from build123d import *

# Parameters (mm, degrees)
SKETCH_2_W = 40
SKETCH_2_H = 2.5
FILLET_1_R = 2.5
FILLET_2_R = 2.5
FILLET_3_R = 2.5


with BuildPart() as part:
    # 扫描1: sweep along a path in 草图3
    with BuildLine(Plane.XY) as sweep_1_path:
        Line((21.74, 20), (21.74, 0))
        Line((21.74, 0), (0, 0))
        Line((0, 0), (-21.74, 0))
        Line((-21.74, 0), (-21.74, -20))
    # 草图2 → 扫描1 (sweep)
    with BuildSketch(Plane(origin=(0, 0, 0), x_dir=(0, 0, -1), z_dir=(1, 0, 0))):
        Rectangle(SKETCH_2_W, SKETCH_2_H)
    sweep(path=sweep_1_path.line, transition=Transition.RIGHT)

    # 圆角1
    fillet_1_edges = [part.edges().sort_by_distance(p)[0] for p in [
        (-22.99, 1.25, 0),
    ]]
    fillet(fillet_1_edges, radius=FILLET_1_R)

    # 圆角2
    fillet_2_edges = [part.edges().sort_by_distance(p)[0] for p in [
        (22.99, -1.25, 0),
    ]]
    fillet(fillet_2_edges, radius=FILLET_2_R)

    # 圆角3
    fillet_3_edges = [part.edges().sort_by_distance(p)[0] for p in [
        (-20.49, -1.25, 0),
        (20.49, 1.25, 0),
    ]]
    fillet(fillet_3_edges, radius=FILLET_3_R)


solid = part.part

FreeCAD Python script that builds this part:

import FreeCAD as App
import Part
import Sketcher
from FreeCAD import Vector


def edges_at(feature, points):
    """Names of the edges that pass closest to the given points."""
    edges = feature.Shape.Edges
    near = lambda p: min(range(len(edges)), key=lambda i: edges[i].distToShape(Part.Vertex(*p))[0])
    return sorted({f"Edge{near(p) + 1}" for p in points})

doc = App.newDocument("Part")
params = doc.addObject("Spreadsheet::Sheet", "Params")
for row, (alias, value) in enumerate([
    ("sketch1_height", "40 mm"),
    ("sketch1_width", "2.5 mm"),
    ("sketch2_height", "20 mm"),
    ("sketch2_width", "43.48 mm"),
    ("fillet_radius", "2.5 mm"),
    ("fillet2_radius", "2.5 mm"),
    ("fillet3_radius", "2.5 mm"),
], start=1):
    params.set(f"A{row}", alias)
    params.set(f"B{row}", "=" + value)
    params.setAlias(f"B{row}", alias)

body = doc.addObject("PartDesign::Body", "Body")

# Sketch on YZ plane
sketch1 = body.newObject("Sketcher::SketchObject", "Sketch")
sketch1.AttachmentSupport = (doc.getObject("YZ_Plane"), [""])
sketch1.MapMode = "FlatFace"
sketch1.addGeometry(Part.LineSegment(Vector(1.2, 20, 0), Vector(-1.2, 20, 0)), False)
sketch1.addGeometry(Part.LineSegment(Vector(-1.2, 20, 0), Vector(-1.2, -20, 0)), False)
sketch1.addGeometry(Part.LineSegment(Vector(-1.2, -20, 0), Vector(1.2, -20, 0)), False)
sketch1.addGeometry(Part.LineSegment(Vector(1.2, -20, 0), Vector(1.2, 20, 0)), False)
sketch1.addConstraint(Sketcher.Constraint("Coincident", 0, 2, 1, 1))
sketch1.addConstraint(Sketcher.Constraint("Coincident", 1, 2, 2, 1))
sketch1.addConstraint(Sketcher.Constraint("Coincident", 2, 2, 3, 1))
sketch1.addConstraint(Sketcher.Constraint("Coincident", 3, 2, 0, 1))
sketch1.addConstraint(Sketcher.Constraint("Horizontal", 0))
sketch1.addConstraint(Sketcher.Constraint("Vertical", 1))
sketch1.addConstraint(Sketcher.Constraint("Horizontal", 2))
sketch1.addConstraint(Sketcher.Constraint("Vertical", 3))
sketch1.addConstraint(Sketcher.Constraint("Symmetric", 0, 2, 2, 2, -1, 1))
sketch1.addConstraint(Sketcher.Constraint("DistanceY", 1, 2, 1, 1, 40.0))
sketch1.addConstraint(Sketcher.Constraint("DistanceX", 0, 2, 0, 1, 2.5))
sketch1.setExpression("Constraints[9]", "Params.sketch1_height")
sketch1.setExpression("Constraints[10]", "Params.sketch1_width")

# Sketch on XY plane
sketch2 = body.newObject("Sketcher::SketchObject", "Sketch001")
sketch2.AttachmentSupport = (doc.getObject("XY_Plane"), [""])
sketch2.MapMode = "FlatFace"
sketch2.addGeometry(Part.LineSegment(Vector(22, 20, 0), Vector(22, 0, 0)), False)
sketch2.addGeometry(Part.LineSegment(Vector(22, 0, 0), Vector(-22, 0, 0)), False)
sketch2.addGeometry(Part.LineSegment(Vector(-22, 0, 0), Vector(-22, -20, 0)), False)
sketch2.addConstraint(Sketcher.Constraint("Coincident", 0, 2, 1, 1))
sketch2.addConstraint(Sketcher.Constraint("Coincident", 1, 2, 2, 1))
sketch2.addConstraint(Sketcher.Constraint("Vertical", 0))
sketch2.addConstraint(Sketcher.Constraint("Horizontal", 1))
sketch2.addConstraint(Sketcher.Constraint("Vertical", 2))
sketch2.addConstraint(Sketcher.Constraint("Symmetric", 0, 2, 1, 2, -1, 1))
sketch2.addConstraint(Sketcher.Constraint("Equal", 0, 2))
sketch2.addConstraint(Sketcher.Constraint("DistanceY", 0, 2, 0, 1, 20.0))
sketch2.addConstraint(Sketcher.Constraint("DistanceX", 1, 2, 1, 1, 43.48))
sketch2.setExpression("Constraints[7]", "Params.sketch2_height")
sketch2.setExpression("Constraints[8]", "Params.sketch2_width")
doc.recompute()

additivepipe = body.newObject("PartDesign::AdditivePipe", "AdditivePipe")
additivepipe.Profile = sketch1
additivepipe.Spine = (sketch2, ["Edge1", "Edge2", "Edge3"])
additivepipe.Transition = "Right corner"
doc.recompute()

fillet = body.newObject("PartDesign::Fillet", "Fillet")
fillet.Base = (additivepipe, edges_at(additivepipe, [(-22.99, 1.25, 0)]))
fillet.setExpression("Radius", "Params.fillet_radius")
doc.recompute()

fillet2 = body.newObject("PartDesign::Fillet", "Fillet001")
fillet2.Base = (fillet, edges_at(fillet, [(22.99, -1.25, 0)]))
fillet2.setExpression("Radius", "Params.fillet2_radius")
doc.recompute()

fillet3 = body.newObject("PartDesign::Fillet", "Fillet002")
fillet3.Base = (fillet2, edges_at(fillet2, [(-20.49, -1.25, 0), (20.49, 1.25, 0)]))
fillet3.setExpression("Radius", "Params.fillet3_radius")

doc.recompute()
